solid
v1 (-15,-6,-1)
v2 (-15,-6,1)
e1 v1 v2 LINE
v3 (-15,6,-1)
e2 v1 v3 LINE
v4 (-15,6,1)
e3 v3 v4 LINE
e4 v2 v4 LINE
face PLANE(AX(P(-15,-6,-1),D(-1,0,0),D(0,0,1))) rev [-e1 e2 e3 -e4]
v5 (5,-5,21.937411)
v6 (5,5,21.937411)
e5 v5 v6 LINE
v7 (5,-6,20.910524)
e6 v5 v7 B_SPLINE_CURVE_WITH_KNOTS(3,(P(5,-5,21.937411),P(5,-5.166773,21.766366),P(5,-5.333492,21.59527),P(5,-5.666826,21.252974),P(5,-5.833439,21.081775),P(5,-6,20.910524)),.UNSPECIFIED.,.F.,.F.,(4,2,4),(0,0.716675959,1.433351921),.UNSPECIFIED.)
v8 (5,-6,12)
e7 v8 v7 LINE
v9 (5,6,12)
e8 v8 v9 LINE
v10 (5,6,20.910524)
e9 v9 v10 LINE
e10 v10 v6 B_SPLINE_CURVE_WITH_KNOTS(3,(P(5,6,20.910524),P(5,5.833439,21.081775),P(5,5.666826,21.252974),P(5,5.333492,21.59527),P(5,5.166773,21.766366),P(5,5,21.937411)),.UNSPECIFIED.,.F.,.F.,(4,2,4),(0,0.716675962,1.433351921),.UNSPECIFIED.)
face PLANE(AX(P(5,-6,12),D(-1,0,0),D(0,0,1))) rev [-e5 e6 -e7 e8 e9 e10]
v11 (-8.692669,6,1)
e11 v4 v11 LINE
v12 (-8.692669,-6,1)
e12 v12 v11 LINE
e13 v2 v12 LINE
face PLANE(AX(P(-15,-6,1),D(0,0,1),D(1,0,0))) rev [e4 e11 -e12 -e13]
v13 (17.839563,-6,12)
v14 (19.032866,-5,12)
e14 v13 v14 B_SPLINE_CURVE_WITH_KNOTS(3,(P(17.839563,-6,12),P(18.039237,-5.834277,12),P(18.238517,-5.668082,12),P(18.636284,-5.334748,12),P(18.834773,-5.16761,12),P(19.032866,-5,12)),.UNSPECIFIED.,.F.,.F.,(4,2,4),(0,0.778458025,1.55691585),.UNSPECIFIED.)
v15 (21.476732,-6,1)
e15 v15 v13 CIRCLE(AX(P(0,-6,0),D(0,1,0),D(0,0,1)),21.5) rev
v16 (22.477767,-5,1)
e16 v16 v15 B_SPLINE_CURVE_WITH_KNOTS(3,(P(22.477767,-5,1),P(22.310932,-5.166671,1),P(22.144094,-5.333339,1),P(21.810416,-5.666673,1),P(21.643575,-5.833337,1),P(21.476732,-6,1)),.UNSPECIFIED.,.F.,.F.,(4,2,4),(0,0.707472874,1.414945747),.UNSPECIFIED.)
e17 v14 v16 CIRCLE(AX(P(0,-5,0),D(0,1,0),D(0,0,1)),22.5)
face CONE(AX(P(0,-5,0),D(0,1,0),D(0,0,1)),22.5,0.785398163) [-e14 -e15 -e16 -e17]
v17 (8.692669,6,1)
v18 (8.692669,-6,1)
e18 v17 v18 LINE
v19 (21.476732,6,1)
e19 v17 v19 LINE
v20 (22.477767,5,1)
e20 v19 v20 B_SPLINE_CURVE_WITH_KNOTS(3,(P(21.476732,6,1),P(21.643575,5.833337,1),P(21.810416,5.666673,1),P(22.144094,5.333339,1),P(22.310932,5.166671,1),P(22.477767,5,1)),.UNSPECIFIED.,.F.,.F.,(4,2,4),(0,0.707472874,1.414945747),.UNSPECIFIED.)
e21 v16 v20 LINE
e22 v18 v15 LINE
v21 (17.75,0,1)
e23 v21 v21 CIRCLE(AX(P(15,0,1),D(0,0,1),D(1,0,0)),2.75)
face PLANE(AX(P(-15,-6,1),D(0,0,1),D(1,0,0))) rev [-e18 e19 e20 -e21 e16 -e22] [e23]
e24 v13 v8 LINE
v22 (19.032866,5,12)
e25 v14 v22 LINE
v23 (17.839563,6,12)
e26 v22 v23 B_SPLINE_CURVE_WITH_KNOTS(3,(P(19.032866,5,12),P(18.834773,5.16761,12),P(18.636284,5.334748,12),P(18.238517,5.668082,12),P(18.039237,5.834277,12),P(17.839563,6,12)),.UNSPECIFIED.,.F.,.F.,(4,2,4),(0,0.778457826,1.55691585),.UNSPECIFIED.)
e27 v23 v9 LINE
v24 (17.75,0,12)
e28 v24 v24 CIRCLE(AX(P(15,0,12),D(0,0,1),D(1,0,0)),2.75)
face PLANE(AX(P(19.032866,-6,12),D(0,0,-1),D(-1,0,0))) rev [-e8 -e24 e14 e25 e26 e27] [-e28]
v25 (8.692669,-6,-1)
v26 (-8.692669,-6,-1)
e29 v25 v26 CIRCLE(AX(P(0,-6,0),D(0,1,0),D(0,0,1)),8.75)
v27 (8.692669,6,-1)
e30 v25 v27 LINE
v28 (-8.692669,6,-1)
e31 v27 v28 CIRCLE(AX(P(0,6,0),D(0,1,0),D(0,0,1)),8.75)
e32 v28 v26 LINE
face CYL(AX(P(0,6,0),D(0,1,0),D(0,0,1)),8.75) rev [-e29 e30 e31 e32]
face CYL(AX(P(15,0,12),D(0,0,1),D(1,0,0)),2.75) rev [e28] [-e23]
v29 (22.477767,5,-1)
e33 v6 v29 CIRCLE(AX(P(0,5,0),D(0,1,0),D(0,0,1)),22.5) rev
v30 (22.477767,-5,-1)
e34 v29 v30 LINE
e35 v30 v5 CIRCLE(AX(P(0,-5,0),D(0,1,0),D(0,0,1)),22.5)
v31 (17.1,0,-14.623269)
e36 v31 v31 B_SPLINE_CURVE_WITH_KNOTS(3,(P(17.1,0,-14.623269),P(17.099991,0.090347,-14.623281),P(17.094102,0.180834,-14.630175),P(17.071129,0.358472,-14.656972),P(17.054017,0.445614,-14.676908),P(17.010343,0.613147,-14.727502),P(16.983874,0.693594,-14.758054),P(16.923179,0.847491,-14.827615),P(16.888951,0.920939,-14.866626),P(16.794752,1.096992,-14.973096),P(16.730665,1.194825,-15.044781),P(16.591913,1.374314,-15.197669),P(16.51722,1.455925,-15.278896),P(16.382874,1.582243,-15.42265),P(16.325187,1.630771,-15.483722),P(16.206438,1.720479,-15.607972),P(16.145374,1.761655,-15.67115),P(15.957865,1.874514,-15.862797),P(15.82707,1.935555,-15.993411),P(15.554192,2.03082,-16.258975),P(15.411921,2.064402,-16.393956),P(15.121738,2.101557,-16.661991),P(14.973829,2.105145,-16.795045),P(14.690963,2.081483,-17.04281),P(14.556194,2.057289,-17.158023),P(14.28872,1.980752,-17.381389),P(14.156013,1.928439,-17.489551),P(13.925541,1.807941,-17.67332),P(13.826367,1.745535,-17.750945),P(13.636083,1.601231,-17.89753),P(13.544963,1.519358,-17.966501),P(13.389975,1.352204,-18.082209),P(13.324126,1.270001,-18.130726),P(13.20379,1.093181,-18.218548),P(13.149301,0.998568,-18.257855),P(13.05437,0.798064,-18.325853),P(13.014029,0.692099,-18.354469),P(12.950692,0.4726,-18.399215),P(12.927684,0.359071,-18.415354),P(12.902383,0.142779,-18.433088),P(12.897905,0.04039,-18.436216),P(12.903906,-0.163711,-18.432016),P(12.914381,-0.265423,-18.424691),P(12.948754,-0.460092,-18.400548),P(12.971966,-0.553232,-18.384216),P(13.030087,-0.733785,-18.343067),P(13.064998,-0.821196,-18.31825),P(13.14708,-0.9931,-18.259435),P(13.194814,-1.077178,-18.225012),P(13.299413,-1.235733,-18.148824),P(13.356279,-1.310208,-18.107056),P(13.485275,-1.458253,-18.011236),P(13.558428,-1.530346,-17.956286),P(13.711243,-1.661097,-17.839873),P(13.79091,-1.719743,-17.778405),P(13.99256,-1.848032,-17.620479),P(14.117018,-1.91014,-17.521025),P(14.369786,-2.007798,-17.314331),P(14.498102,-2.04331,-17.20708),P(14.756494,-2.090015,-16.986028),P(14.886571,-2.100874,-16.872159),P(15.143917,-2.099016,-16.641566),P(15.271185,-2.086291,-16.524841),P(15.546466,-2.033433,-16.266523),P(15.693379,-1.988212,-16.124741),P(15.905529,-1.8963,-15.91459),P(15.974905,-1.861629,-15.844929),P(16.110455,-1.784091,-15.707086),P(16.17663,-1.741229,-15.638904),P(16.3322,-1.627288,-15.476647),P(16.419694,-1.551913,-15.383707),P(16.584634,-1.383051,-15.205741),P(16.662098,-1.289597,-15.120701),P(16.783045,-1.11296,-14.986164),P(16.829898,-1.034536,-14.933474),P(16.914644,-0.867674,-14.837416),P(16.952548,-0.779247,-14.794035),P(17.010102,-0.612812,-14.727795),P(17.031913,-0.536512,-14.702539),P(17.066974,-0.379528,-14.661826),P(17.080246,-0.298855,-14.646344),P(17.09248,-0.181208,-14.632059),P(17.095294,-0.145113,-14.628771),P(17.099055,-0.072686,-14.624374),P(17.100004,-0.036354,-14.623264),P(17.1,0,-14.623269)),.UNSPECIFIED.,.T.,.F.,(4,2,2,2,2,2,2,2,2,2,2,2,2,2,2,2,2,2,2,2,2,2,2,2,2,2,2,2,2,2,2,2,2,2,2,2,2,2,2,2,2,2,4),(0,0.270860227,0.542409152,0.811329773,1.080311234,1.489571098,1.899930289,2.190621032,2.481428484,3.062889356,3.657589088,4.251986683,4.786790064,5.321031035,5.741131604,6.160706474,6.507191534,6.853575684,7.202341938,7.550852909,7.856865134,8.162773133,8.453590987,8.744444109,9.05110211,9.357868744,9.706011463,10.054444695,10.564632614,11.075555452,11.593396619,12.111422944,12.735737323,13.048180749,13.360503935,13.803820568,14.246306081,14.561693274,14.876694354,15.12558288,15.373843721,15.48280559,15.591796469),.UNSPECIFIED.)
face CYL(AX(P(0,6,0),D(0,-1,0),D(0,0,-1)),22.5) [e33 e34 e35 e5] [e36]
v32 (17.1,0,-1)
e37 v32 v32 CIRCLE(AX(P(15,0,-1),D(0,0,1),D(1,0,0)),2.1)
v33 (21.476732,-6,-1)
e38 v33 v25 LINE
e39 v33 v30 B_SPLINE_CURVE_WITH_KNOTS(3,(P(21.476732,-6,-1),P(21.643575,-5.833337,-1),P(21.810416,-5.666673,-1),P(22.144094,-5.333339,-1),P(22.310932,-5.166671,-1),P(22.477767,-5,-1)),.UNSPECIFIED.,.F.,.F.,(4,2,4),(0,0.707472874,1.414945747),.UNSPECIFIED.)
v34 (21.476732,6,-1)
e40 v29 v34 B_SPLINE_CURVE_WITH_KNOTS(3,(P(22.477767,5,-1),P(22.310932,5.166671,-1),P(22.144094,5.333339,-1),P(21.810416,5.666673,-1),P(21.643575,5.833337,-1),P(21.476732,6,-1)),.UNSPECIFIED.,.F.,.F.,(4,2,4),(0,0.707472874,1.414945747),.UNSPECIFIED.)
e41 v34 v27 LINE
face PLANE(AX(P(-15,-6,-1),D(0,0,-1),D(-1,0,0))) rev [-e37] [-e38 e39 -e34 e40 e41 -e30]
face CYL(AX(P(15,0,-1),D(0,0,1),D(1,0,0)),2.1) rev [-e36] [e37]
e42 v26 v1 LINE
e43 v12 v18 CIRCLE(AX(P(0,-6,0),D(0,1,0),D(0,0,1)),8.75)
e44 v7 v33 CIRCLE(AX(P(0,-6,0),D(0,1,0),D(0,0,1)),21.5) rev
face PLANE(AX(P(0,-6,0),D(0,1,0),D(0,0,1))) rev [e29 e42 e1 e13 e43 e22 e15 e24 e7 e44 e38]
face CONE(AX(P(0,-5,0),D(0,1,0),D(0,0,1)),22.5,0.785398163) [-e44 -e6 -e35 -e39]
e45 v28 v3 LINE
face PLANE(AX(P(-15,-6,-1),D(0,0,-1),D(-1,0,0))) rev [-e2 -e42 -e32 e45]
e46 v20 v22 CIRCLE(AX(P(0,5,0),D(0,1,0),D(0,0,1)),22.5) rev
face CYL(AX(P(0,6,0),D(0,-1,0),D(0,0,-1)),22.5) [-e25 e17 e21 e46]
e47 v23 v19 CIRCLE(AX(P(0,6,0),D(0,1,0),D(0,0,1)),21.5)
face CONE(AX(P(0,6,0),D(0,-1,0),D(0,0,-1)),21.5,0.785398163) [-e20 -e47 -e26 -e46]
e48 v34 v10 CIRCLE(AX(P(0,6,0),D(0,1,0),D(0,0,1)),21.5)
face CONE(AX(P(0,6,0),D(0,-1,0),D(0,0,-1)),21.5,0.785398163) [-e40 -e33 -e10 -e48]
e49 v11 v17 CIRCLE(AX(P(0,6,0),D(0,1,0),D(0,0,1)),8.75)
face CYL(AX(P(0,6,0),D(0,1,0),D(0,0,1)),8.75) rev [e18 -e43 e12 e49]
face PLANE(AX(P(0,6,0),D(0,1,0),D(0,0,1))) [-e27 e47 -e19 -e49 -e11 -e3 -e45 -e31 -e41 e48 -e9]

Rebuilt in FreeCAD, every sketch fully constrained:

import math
import FreeCAD as App
import Part
import Sketcher
from FreeCAD import Vector
Q = App.Units.Quantity


def edges_at(feature, points):
    """Names of the edges that pass closest to the given points."""
    edges = feature.Shape.Edges
    near = lambda p: min(range(len(edges)), key=lambda i: edges[i].distToShape(Part.Vertex(*p))[0])
    return sorted({f"Edge{near(p) + 1}" for p in points})

doc = App.newDocument("Part")
body = doc.addObject("PartDesign::Body", "Body")

sketch1 = body.newObject("Sketcher::SketchObject", "Sketch")
sketch1.AttachmentSupport = (doc.getObject("XZ_Plane"), [""])
sketch1.MapMode = "FlatFace"
sketch1.addGeometry(Part.Circle(Vector(0, 0, 0), Vector(0, 0, 1), 22.5), False)
sketch1.addConstraint([
    Sketcher.Constraint("Coincident", 0, 3, -1, 1),
    Sketcher.Constraint("Diameter", 0, Q("45 mm")),
])
pad1 = body.newObject("PartDesign::Pad", "Pad")
pad1.Profile = sketch1
pad1.Length = 12
pad1.Midplane = True

sketch2 = body.newObject("Sketcher::SketchObject", "Sketch001")
sketch2.AttachmentSupport = (doc.getObject("XZ_Plane"), [""])
sketch2.MapMode = "FlatFace"
sketch2.AttachmentOffset = App.Placement(Vector(0, 0, -6), App.Rotation())
sketch2.addGeometry(Part.Circle(Vector(0, 0, 0), Vector(0, 0, 1), 8.75), False)
sketch2.addConstraint([
    Sketcher.Constraint("Coincident", 0, 3, -1, 1),
    Sketcher.Constraint("Diameter", 0, Q("17.5 mm")),
])
doc.recompute()
hole = body.newObject("PartDesign::Hole", "Hole")
hole.Profile = sketch2
hole.ThreadType = "None"
hole.Diameter = 17.5
hole.DepthType = "ThroughAll"
hole.Reversed = True

sketch3 = body.newObject("Sketcher::SketchObject", "Sketch002")
sketch3.AttachmentSupport = (doc.getObject("XZ_Plane"), [""])
sketch3.MapMode = "FlatFace"
sketch3.AttachmentOffset = App.Placement(Vector(0, 0, -6), App.Rotation())
sketch3.addGeometry([
    Part.LineSegment(Vector(-15, -1, 0), Vector(-15, 1, 0)),
    Part.LineSegment(Vector(-15, 1, 0), Vector(22.5, 1, 0)),
    Part.LineSegment(Vector(22.5, 1, 0), Vector(22.5, -1, 0)),
    Part.LineSegment(Vector(22.5, -1, 0), Vector(-15, -1, 0)),
], False)
sketch3.addConstraint([
    Sketcher.Constraint("Coincident", 0, 2, 1, 1),
    Sketcher.Constraint("Coincident", 1, 2, 2, 1),
    Sketcher.Constraint("Coincident", 2, 2, 3, 1),
    Sketcher.Constraint("Coincident", 3, 2, 0, 1),
    Sketcher.Constraint("Vertical", 0),
    Sketcher.Constraint("Horizontal", 1),
    Sketcher.Constraint("Vertical", 2),
    Sketcher.Constraint("Horizontal", 3),
    Sketcher.Constraint("DistanceY", 0, 1, 0, 2, Q("2 mm")),
    Sketcher.Constraint("DistanceX", 1, 1, 1, 2, Q("37.5 mm")),
    Sketcher.Constraint("DistanceX", 0, 2, -1, 1, Q("15 mm")),
    Sketcher.Constraint("DistanceY", -1, 1, 0, 2, Q("1 mm")),
])
pocket1 = body.newObject("PartDesign::Pocket", "Pocket")
pocket1.Profile = sketch3
pocket1.Type = "ThroughAll"
pocket1.Reversed = True

sketch4 = body.newObject("Sketcher::SketchObject", "Sketch003")
sketch4.AttachmentSupport = (doc.getObject("XZ_Plane"), [""])
sketch4.MapMode = "FlatFace"
sketch4.AttachmentOffset = App.Placement(Vector(0, 0, -6), App.Rotation())
sketch4.addGeometry([
    Part.LineSegment(Vector(19.032866, 12, 0), Vector(5, 12, 0)),
    Part.LineSegment(Vector(5, 12, 0), Vector(5, 21.937411, 0)),
    Part.ArcOfCircle(Part.Circle(Vector(0, 0, 0), Vector(0, 0, 1), 22.5), math.radians(32.230953), math.radians(77.160412)),
], False)
sketch4.addConstraint([
    Sketcher.Constraint("Coincident", 0, 2, 1, 1),
    Sketcher.Constraint("Coincident", 1, 2, 2, 2),
    Sketcher.Constraint("Coincident", 2, 1, 0, 1),
    Sketcher.Constraint("Horizontal", 0),
    Sketcher.Constraint("Vertical", 1),
    Sketcher.Constraint("Coincident", 2, 3, -1, 1),
    Sketcher.Constraint("Radius", 2, Q("22.5 mm")),
    Sketcher.Constraint("DistanceX", -1, 1, 0, 2, Q("5 mm")),
    Sketcher.Constraint("DistanceY", -1, 1, 0, 2, Q("12 mm")),
])
pocket2 = body.newObject("PartDesign::Pocket", "Pocket001")
pocket2.Profile = sketch4
pocket2.Type = "ThroughAll"
pocket2.Reversed = True

sketch5 = body.newObject("Sketcher::SketchObject", "Sketch004")
sketch5.AttachmentSupport = (doc.getObject("XY_Plane"), [""])
sketch5.MapMode = "FlatFace"
sketch5.AttachmentOffset = App.Placement(Vector(0, 0, 12), App.Rotation())
sketch5.addGeometry(Part.Circle(Vector(15, 0, 0), Vector(0, 0, 1), 2.75), False)
sketch5.addConstraint([
    Sketcher.Constraint("PointOnObject", 0, 3, -1),
    Sketcher.Constraint("Diameter", 0, Q("5.5 mm")),
    Sketcher.Constraint("DistanceX", -1, 1, 0, 3, Q("15 mm")),
])
doc.recompute()
hole2 = body.newObject("PartDesign::Hole", "Hole001")
hole2.Profile = sketch5
hole2.ThreadType = "None"
hole2.Diameter = 5.5
hole2.DepthType = "Dimension"
hole2.Depth = 11
hole2.DrillPoint = "Flat"

sketch6 = body.newObject("Sketcher::SketchObject", "Sketch005")
sketch6.AttachmentSupport = (doc.getObject("XY_Plane"), [""])
sketch6.MapMode = "FlatFace"
sketch6.AttachmentOffset = App.Placement(Vector(0, 0, -1), App.Rotation())
sketch6.addGeometry(Part.Circle(Vector(15, 0, 0), Vector(0, 0, 1), 2.1), False)
sketch6.addConstraint([
    Sketcher.Constraint("PointOnObject", 0, 3, -1),
    Sketcher.Constraint("Diameter", 0, Q("4.2 mm")),
    Sketcher.Constraint("DistanceX", -1, 1, 0, 3, Q("15 mm")),
])
doc.recompute()
hole3 = body.newObject("PartDesign::Hole", "Hole002")
hole3.Profile = sketch6
hole3.ThreadType = "None"
hole3.Diameter = 4.2
hole3.DepthType = "ThroughAll"
doc.recompute()

chamfer = body.newObject("PartDesign::Chamfer", "Chamfer")
chamfer.Base = (hole3, edges_at(hole3, [
    (-17.897, -6, -13.637),
    (-17.897, 6, -13.637),
    (21.472, -6, 6.724),
    (21.472, 6, 6.724),
]))
chamfer.Size = 1

doc.recompute()
